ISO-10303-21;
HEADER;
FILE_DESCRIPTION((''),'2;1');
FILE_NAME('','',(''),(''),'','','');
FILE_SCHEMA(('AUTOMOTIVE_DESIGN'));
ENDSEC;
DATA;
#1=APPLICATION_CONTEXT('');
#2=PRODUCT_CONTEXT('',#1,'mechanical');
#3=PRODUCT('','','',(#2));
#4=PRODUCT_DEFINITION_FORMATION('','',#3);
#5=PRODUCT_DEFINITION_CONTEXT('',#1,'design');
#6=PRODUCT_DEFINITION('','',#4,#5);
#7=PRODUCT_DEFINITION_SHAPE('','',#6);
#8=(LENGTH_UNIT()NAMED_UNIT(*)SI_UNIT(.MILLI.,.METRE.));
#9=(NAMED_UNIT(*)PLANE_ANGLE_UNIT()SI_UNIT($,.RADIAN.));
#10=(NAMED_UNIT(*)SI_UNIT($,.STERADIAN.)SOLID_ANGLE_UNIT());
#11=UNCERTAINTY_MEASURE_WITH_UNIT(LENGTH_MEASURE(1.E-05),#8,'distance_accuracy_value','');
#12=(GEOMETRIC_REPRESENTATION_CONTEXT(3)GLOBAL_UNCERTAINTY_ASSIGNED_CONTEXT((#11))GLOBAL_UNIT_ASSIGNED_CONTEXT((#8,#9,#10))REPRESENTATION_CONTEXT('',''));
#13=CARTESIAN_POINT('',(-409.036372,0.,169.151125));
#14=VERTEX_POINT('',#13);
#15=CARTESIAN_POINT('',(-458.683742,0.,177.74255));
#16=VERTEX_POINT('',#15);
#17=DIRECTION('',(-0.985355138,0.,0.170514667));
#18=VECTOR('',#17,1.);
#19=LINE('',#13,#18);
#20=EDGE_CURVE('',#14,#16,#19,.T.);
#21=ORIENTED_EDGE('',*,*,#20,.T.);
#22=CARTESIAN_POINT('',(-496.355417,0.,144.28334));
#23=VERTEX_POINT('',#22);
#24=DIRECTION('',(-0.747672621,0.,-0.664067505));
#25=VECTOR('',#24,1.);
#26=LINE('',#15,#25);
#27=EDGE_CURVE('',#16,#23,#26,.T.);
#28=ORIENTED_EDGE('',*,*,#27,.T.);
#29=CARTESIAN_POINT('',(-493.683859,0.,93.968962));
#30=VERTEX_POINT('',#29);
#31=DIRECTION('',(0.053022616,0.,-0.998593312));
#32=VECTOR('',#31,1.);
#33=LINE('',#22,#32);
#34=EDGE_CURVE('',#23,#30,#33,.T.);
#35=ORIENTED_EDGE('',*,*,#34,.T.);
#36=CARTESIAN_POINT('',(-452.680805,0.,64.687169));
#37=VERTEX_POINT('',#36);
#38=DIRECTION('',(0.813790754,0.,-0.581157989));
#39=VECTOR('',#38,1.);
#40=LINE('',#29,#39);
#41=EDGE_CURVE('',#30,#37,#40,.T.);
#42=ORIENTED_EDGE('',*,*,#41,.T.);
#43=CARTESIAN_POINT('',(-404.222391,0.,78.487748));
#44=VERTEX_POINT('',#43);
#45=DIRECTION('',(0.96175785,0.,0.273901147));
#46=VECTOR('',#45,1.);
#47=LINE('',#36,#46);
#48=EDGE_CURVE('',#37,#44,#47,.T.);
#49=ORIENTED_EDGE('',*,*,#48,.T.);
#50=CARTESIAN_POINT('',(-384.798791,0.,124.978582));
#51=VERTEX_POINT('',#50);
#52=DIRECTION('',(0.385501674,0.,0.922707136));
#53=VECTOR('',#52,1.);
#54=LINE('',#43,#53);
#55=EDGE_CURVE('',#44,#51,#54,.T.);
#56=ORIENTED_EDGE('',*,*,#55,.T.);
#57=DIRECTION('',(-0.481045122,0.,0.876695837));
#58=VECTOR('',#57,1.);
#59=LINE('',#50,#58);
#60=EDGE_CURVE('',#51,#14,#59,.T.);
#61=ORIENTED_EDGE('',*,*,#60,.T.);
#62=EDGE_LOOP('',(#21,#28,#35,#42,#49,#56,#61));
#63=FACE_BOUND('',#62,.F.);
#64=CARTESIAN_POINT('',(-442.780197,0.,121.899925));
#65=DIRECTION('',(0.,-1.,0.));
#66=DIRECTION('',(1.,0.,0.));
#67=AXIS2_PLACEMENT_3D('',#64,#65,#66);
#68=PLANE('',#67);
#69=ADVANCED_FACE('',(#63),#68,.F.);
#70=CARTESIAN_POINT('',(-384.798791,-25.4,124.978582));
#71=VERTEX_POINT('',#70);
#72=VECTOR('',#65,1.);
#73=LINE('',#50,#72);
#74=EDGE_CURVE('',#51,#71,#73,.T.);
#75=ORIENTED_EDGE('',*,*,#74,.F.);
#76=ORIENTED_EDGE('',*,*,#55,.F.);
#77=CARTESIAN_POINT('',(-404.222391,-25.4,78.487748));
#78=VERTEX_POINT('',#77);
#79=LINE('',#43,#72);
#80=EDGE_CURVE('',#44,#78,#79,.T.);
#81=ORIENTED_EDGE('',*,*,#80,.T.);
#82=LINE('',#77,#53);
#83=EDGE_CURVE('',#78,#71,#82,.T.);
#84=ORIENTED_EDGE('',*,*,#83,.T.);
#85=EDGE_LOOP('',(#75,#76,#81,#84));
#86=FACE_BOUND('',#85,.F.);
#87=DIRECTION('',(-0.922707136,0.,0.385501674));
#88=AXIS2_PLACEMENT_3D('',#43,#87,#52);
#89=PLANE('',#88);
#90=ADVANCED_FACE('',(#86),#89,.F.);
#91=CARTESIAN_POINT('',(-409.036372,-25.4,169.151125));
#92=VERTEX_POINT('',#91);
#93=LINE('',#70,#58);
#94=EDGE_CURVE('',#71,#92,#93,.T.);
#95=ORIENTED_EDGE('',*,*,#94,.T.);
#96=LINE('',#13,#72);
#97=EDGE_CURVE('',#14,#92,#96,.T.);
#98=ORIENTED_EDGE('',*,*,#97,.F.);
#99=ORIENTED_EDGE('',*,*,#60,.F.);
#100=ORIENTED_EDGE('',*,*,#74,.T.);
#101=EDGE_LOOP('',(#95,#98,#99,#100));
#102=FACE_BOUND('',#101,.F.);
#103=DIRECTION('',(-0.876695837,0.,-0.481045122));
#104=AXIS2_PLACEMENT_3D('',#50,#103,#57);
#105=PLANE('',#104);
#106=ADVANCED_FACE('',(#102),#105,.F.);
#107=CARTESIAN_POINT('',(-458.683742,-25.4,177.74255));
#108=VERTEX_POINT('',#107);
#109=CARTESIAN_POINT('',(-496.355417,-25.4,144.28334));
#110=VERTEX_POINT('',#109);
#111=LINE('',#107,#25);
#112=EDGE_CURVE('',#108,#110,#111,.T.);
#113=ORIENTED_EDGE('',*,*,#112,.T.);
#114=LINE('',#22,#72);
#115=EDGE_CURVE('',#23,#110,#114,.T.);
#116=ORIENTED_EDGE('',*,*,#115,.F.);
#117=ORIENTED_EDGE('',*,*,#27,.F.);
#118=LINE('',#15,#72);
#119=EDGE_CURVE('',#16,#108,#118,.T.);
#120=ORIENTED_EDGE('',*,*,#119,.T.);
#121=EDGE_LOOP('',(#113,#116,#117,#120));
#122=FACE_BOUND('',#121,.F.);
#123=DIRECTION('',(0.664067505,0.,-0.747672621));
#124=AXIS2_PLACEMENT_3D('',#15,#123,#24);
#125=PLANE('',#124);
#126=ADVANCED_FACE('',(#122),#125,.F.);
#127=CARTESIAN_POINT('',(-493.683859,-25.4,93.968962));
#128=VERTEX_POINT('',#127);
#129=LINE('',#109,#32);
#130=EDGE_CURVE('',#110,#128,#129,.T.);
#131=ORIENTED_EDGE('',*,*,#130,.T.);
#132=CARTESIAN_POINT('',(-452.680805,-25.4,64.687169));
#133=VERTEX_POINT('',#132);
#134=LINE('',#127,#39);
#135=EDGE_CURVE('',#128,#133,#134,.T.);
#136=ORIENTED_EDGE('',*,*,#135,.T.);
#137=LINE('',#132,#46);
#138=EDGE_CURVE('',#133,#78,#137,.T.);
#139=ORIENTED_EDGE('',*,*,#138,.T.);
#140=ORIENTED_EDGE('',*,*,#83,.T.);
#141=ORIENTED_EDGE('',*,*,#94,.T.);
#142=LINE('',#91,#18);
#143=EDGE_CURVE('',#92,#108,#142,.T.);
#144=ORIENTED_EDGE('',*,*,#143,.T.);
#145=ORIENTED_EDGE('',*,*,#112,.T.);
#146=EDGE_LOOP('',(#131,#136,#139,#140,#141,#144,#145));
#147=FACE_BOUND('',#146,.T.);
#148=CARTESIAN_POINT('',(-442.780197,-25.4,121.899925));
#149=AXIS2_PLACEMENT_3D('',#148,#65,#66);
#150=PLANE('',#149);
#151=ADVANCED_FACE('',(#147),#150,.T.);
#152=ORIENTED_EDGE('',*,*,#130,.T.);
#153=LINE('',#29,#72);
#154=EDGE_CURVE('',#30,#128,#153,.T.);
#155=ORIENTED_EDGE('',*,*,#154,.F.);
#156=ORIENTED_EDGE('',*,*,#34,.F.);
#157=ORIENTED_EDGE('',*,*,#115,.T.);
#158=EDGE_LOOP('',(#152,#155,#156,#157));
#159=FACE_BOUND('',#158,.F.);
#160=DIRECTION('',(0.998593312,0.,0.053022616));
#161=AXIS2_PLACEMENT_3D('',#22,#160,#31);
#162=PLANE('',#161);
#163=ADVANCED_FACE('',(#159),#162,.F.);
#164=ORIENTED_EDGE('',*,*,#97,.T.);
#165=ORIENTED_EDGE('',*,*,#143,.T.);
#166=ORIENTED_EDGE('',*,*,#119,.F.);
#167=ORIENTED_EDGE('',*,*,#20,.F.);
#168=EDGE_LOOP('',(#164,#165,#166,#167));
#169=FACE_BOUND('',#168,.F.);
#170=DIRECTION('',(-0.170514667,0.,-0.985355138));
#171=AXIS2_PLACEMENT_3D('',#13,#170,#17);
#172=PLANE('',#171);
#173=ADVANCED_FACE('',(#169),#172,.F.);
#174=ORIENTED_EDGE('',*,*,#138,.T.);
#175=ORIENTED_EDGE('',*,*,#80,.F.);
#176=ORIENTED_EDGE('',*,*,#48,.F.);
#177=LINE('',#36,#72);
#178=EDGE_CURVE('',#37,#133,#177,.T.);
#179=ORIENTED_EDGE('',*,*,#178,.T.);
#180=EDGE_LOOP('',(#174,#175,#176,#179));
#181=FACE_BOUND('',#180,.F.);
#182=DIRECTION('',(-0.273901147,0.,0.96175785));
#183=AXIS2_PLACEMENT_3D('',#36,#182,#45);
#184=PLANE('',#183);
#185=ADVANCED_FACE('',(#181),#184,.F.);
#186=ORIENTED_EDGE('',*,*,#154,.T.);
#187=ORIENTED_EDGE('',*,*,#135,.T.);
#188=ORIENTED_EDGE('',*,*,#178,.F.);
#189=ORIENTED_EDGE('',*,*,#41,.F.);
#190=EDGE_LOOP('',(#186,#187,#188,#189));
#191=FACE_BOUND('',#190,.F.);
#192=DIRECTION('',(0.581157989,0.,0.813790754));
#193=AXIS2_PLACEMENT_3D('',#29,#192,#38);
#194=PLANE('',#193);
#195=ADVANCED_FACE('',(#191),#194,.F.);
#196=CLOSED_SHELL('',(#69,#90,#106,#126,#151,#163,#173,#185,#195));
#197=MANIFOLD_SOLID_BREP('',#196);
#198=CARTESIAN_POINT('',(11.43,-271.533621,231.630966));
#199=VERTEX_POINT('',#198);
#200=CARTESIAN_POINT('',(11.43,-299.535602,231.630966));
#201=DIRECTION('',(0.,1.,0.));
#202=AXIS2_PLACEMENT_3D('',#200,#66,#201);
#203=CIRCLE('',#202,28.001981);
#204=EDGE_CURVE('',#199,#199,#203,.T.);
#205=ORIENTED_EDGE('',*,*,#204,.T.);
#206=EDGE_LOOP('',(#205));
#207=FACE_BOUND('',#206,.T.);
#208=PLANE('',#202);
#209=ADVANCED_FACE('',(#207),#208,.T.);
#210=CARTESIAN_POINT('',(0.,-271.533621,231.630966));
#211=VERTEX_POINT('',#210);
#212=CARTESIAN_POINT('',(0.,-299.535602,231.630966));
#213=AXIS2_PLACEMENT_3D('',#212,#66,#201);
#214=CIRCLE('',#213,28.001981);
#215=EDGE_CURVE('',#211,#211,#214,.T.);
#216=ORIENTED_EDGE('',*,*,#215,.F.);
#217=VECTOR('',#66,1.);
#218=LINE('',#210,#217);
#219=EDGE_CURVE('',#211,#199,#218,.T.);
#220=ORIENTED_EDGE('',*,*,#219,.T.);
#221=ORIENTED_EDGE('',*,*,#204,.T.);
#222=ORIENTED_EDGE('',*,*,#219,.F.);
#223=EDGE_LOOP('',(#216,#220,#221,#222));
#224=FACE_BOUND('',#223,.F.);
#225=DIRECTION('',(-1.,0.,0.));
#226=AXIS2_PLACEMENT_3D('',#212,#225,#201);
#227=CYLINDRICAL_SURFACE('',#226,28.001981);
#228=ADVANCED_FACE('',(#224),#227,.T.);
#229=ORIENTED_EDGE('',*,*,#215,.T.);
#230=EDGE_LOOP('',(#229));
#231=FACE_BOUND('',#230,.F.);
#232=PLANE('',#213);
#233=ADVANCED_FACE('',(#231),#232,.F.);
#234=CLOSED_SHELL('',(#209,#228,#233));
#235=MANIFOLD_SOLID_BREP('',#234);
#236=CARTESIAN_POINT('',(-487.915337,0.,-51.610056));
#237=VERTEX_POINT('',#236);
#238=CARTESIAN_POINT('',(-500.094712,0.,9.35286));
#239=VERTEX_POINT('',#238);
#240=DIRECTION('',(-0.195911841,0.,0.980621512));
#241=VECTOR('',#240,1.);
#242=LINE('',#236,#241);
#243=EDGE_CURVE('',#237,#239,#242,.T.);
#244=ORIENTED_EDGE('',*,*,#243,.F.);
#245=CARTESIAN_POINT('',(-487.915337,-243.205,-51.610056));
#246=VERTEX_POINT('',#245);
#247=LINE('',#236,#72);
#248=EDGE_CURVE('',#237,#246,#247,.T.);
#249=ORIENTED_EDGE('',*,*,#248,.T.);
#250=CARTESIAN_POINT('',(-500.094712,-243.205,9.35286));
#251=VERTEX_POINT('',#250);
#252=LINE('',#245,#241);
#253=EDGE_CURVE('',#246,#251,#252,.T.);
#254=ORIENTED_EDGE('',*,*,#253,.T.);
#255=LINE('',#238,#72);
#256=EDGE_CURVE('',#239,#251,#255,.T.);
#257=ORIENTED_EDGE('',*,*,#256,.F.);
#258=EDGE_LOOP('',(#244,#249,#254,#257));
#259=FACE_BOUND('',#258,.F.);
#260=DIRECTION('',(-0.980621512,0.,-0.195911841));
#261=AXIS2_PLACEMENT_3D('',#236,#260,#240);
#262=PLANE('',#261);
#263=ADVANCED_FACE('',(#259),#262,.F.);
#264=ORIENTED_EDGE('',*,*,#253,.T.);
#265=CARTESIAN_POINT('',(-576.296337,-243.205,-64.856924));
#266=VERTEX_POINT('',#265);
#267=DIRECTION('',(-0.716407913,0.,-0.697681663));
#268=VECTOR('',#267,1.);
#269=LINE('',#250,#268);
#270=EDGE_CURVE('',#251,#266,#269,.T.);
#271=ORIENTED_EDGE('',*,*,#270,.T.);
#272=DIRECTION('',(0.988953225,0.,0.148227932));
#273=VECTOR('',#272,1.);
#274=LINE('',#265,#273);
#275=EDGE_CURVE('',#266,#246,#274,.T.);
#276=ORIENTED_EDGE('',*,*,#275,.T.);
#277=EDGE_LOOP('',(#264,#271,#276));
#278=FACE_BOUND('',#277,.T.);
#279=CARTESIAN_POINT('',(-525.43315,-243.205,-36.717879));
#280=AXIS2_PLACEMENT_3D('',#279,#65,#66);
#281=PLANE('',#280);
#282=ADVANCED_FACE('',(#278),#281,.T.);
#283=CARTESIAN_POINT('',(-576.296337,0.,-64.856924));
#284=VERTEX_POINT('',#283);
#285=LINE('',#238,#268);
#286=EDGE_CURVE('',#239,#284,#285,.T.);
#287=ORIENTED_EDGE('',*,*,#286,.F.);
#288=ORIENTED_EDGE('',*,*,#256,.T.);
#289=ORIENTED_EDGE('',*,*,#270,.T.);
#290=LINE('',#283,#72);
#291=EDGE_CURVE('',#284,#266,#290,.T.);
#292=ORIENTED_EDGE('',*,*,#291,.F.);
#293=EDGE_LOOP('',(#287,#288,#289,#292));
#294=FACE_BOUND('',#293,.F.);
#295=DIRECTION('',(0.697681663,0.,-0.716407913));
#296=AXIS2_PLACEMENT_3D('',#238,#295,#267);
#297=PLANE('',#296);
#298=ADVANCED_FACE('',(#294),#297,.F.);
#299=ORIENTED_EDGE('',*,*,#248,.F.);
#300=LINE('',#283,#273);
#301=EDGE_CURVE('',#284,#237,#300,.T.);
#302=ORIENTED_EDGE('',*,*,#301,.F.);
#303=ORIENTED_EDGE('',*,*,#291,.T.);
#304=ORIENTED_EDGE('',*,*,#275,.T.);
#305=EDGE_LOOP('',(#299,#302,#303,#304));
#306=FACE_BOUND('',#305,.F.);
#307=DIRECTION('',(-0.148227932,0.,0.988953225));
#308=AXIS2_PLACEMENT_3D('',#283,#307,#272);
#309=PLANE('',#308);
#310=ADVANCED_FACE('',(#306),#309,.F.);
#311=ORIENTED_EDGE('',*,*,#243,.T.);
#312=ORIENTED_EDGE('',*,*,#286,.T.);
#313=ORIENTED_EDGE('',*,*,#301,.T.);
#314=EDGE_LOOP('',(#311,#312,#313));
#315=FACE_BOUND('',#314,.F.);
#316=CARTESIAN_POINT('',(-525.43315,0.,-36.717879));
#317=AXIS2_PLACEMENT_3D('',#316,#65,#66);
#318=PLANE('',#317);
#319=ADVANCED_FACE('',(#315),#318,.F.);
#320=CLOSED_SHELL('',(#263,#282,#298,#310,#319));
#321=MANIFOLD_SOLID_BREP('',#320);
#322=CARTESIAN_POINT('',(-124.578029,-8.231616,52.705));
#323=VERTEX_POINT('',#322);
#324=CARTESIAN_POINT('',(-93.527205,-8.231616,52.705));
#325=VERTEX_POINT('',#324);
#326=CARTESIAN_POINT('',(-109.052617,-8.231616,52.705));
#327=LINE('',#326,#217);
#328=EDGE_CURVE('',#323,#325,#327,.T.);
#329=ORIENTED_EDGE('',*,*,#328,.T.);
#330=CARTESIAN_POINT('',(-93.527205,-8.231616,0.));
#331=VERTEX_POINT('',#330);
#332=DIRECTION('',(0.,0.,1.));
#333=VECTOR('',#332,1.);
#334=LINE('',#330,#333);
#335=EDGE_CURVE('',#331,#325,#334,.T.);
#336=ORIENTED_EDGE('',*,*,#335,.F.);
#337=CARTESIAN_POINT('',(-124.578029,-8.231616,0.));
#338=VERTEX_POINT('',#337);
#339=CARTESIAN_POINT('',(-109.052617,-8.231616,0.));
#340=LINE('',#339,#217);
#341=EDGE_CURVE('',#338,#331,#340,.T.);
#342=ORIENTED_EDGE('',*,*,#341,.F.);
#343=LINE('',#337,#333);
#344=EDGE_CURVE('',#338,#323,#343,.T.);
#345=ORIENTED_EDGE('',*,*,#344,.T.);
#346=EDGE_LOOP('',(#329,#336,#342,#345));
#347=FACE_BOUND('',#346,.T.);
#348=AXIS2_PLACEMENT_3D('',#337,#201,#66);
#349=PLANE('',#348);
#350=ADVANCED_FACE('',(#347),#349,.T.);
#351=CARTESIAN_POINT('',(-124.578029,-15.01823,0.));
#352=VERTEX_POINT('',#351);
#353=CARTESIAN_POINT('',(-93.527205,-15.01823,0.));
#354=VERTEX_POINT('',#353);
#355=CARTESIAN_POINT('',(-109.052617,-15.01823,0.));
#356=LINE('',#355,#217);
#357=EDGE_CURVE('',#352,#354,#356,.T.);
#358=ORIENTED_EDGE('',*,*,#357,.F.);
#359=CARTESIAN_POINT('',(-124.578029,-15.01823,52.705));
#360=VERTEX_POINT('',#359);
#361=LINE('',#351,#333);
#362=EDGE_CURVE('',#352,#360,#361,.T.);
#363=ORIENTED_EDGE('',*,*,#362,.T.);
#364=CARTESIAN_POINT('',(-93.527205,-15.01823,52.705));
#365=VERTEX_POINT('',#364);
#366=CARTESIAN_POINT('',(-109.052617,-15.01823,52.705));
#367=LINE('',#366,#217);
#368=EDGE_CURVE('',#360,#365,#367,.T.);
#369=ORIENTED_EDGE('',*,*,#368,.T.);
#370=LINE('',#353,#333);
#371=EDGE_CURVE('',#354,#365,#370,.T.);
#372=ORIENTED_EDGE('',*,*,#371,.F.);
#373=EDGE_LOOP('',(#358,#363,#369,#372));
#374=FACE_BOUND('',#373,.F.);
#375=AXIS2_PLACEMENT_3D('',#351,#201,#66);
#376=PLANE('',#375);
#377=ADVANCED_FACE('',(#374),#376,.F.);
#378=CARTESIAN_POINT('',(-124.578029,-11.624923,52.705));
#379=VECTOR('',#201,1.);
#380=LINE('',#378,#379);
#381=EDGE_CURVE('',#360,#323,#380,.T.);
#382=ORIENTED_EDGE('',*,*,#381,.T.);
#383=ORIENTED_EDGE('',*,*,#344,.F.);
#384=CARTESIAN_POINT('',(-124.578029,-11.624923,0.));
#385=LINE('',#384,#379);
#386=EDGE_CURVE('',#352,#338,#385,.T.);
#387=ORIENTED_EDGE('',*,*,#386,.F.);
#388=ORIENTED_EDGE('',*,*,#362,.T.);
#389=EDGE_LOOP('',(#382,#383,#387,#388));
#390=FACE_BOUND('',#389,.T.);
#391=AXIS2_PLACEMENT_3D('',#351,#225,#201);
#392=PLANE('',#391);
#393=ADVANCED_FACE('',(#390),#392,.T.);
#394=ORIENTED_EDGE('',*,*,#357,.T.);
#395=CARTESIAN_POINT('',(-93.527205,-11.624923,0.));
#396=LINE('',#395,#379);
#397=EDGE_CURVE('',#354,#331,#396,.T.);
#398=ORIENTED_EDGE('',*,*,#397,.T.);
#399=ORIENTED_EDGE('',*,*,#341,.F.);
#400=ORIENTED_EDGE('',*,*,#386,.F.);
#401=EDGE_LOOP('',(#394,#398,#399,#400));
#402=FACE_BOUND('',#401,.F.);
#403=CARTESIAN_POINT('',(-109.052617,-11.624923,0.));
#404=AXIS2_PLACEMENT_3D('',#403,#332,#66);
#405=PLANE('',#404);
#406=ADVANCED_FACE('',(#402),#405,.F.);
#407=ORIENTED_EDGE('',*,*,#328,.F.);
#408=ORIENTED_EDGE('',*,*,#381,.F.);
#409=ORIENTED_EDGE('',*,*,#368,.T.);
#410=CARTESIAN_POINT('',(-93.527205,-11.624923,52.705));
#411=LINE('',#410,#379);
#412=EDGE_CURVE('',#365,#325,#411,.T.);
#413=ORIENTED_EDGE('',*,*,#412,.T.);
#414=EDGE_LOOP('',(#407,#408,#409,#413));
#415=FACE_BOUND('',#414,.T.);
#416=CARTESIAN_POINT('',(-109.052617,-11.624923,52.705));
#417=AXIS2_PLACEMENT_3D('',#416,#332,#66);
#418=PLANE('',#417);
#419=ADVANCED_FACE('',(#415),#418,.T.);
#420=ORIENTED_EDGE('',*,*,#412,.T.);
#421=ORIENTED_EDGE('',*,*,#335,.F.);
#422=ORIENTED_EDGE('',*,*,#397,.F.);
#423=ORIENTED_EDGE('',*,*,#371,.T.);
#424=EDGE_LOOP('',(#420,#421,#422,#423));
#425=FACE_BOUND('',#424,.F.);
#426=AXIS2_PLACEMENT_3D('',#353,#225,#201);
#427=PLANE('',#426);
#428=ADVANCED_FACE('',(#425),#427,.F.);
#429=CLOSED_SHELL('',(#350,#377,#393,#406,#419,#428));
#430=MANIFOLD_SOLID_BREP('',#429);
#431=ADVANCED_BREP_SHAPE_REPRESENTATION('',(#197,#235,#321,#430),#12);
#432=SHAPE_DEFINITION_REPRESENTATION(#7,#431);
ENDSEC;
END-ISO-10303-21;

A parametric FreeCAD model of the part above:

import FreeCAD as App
import Part
import Sketcher
Q = App.Units.Quantity

doc = App.newDocument("Part")
body = doc.addObject("PartDesign::Body", "Body")

sketch1 = body.newObject("Sketcher::SketchObject", "Sketch")
sketch1.AttachmentSupport = (doc.getObject("XY_Plane"), [""])
sketch1.MapMode = "FlatFace"
sketch1.addGeometry([
    Part.LineSegment(App.Vector(-124.578029, -8.231616, 0), App.Vector(-124.578029, -15.01823, 0)),
    Part.LineSegment(App.Vector(-124.578029, -15.01823, 0), App.Vector(-93.527205, -15.01823, 0)),
    Part.LineSegment(App.Vector(-93.527205, -15.01823, 0), App.Vector(-93.527205, -8.231616, 0)),
    Part.LineSegment(App.Vector(-93.527205, -8.231616, 0), App.Vector(-124.578029, -8.231616, 0)),
], False)
sketch1.addConstraint([
    Sketcher.Constraint("Coincident", 0, 2, 1, 1),
    Sketcher.Constraint("Coincident", 1, 2, 2, 1),
    Sketcher.Constraint("Coincident", 2, 2, 3, 1),
    Sketcher.Constraint("Coincident", 3, 2, 0, 1),
    Sketcher.Constraint("Vertical", 0),
    Sketcher.Constraint("Horizontal", 1),
    Sketcher.Constraint("Vertical", 2),
    Sketcher.Constraint("Horizontal", 3),
    Sketcher.Constraint("DistanceX", 1, 1, 1, 2, 31.050824),
    Sketcher.Constraint("DistanceY", 0, 2, 0, 1, 6.786614),
    Sketcher.Constraint("DistanceX", 0, 2, -1, 1, 124.578029),
    Sketcher.Constraint("DistanceY", 0, 2, -1, 1, 15.01823),
])
pad1 = body.newObject("PartDesign::Pad", "Pad")
pad1.Profile = sketch1
pad1.Length = Q("2.075 in")
body2 = doc.addObject("PartDesign::Body", "Body001")

sketch2 = body2.newObject("Sketcher::SketchObject", "Sketch001")
sketch2.AttachmentSupport = (doc.getObject("YZ_Plane001"), [""])
sketch2.MapMode = "FlatFace"
sketch2.addGeometry(Part.Circle(App.Vector(-299.535602, 231.630966, 0), App.Vector(0, 0, 1), 28.001981), False)
sketch2.addConstraint([
    Sketcher.Constraint("Diameter", 0, 56.003962),
    Sketcher.Constraint("DistanceX", 0, 3, -1, 1, 299.535602),
    Sketcher.Constraint("DistanceY", -1, 1, 0, 3, 231.630966),
])
pad2 = body2.newObject("PartDesign::Pad", "Pad001")
pad2.Profile = sketch2
pad2.Length = Q("0.45 in")
body3 = doc.addObject("PartDesign::Body", "Body002")

sketch3 = body3.newObject("Sketcher::SketchObject", "Sketch002")
sketch3.AttachmentSupport = (doc.getObject("XZ_Plane002"), [""])
sketch3.MapMode = "FlatFace"
sketch3.addGeometry([
    Part.LineSegment(App.Vector(-500.094712, 9.35286, 0), App.Vector(-576.296337, -64.856924, 0)),
    Part.LineSegment(App.Vector(-576.296337, -64.856924, 0), App.Vector(-487.915337, -51.610056, 0)),
    Part.LineSegment(App.Vector(-487.915337, -51.610056, 0), App.Vector(-500.094712, 9.35286, 0)),
], False)
sketch3.addConstraint([
    Sketcher.Constraint("Coincident", 0, 2, 1, 1),
    Sketcher.Constraint("Coincident", 1, 2, 2, 1),
    Sketcher.Constraint("Coincident", 2, 2, 0, 1),
    Sketcher.Constraint("DistanceX", 0, 2, 1, 2, 88.381),
    Sketcher.Constraint("Distance", 1, 89.368231),
    Sketcher.Constraint("Distance", 2, 62.167631),
    Sketcher.Constraint("DistanceX", 2, 2, -1, 1, 500.094712),
    Sketcher.Constraint("DistanceY", -1, 1, 2, 2, 9.35286),
    Sketcher.Constraint("Distance", 0, 106.366253),
])
pad3 = body3.newObject("PartDesign::Pad", "Pad002")
pad3.Profile = sketch3
pad3.Length = Q("9.575 in")
body4 = doc.addObject("PartDesign::Body", "Body003")

sketch4 = body4.newObject("Sketcher::SketchObject", "Sketch003")
sketch4.AttachmentSupport = (doc.getObject("XZ_Plane003"), [""])
sketch4.MapMode = "FlatFace"
sketch4.addGeometry([
    Part.LineSegment(App.Vector(-452.680805, 64.687169, 0), App.Vector(-404.222391, 78.487748, 0)),
    Part.LineSegment(App.Vector(-404.222391, 78.487748, 0), App.Vector(-384.798791, 124.978582, 0)),
    Part.LineSegment(App.Vector(-384.798791, 124.978582, 0), App.Vector(-409.036372, 169.151125, 0)),
    Part.LineSegment(App.Vector(-409.036372, 169.151125, 0), App.Vector(-458.683742, 177.74255, 0)),
    Part.LineSegment(App.Vector(-458.683742, 177.74255, 0), App.Vector(-496.355417, 144.28334, 0)),
    Part.LineSegment(App.Vector(-496.355417, 144.28334, 0), App.Vector(-493.683859, 93.968962, 0)),
    Part.LineSegment(App.Vector(-493.683859, 93.968962, 0), App.Vector(-452.680805, 64.687169, 0)),
], False)
sketch4.addConstraint([
    Sketcher.Constraint("Coincident", 0, 2, 1, 1),
    Sketcher.Constraint("Coincident", 1, 2, 2, 1),
    Sketcher.Constraint("Coincident", 2, 2, 3, 1),
    Sketcher.Constraint("Coincident", 3, 2, 4, 1),
    Sketcher.Constraint("Coincident", 4, 2, 5, 1),
    Sketcher.Constraint("Coincident", 5, 2, 6, 1),
    Sketcher.Constraint("Coincident", 6, 2, 0, 1),
    Sketcher.Constraint("Equal", 0, 1),
    Sketcher.Constraint("Equal", 1, 2),
    Sketcher.Constraint("Equal", 2, 3),
    Sketcher.Constraint("Equal", 3, 4),
    Sketcher.Constraint("Equal", 4, 5),
    Sketcher.Constraint("Equal", 5, 6),
    Sketcher.Constraint("DistanceX", 0, 2, 1, 2, 19.4236),
    Sketcher.Constraint("DistanceY", 0, 2, 3, 2, 99.254802),
    Sketcher.Constraint("DistanceX", 0, 2, -1, 1, 404.222391),
    Sketcher.Constraint("DistanceX", 2, 2, -1, 1, 409.036372),
    Sketcher.Constraint("DistanceX", 3, 2, -1, 1, 458.683742),
    Sketcher.Constraint("DistanceY", -1, 1, 3, 2, 177.74255),
    Sketcher.Constraint("DistanceY", -1, 1, 4, 2, 144.28334),
    Sketcher.Constraint("DistanceX", 5, 2, -1, 1, 493.683859),
])
pad4 = body4.newObject("PartDesign::Pad", "Pad003")
pad4.Profile = sketch4
pad4.Length = Q("1 in")

doc.recompute()
